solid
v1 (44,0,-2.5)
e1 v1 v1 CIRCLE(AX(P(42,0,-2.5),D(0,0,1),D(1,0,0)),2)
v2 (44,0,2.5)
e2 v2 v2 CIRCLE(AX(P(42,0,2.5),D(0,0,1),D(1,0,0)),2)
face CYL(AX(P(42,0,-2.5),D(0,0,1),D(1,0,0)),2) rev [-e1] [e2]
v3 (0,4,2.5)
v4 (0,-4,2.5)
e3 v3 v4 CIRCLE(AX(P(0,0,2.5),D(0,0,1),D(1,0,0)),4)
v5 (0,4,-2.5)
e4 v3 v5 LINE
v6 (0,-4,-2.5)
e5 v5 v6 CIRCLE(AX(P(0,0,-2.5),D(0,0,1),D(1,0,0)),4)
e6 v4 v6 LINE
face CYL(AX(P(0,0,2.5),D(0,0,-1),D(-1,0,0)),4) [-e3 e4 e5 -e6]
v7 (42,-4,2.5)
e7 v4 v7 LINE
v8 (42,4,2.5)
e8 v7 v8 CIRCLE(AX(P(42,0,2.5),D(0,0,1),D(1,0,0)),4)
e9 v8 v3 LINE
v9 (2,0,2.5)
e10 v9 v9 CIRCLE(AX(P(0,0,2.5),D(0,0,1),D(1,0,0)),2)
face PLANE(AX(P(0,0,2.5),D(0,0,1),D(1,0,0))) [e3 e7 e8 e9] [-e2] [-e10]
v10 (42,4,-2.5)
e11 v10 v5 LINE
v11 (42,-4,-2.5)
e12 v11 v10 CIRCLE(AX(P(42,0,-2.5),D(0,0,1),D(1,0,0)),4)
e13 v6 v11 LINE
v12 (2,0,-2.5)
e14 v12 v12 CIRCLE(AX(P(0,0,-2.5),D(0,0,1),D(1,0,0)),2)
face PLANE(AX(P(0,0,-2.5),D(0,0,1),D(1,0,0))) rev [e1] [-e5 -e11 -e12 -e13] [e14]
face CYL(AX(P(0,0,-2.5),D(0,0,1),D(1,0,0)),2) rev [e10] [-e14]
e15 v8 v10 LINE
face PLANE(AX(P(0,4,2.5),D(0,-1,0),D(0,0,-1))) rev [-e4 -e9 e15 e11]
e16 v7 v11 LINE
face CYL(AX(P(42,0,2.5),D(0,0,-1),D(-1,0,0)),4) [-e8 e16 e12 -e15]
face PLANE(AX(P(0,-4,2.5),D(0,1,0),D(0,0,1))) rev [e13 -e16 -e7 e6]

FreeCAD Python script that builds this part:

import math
import FreeCAD as App
import Part
import Sketcher
from FreeCAD import Vector

doc = App.newDocument("Part")
params = doc.addObject("Spreadsheet::Sheet", "Params")
for row, (alias, value) in enumerate([
    ("sketch1_radius", "4 mm"),
    ("sketch1_width", "42 mm"),
    ("pad1_length", "5 mm"),
    ("sketch2_diameter", "4 mm"),
], start=1):
    params.set(f"A{row}", alias)
    params.set(f"B{row}", "=" + value)
    params.setAlias(f"B{row}", alias)

body = doc.addObject("PartDesign::Body", "Body")

# Sketch on XY plane
sketch1 = body.newObject("Sketcher::SketchObject", "Sketch")
sketch1.AttachmentSupport = (doc.getObject("XY_Plane"), [""])
sketch1.MapMode = "FlatFace"
sketch1.addGeometry([
    Part.LineSegment(Vector(42, 4, 0), Vector(0, 4, 0)),
    Part.ArcOfCircle(Part.Circle(Vector(0, 0, 0), Vector(0, 0, 1), 4), math.radians(90), math.radians(270)),
    Part.LineSegment(Vector(0, -4, 0), Vector(42, -4, 0)),
    Part.ArcOfCircle(Part.Circle(Vector(42, 0, 0), Vector(0, 0, 1), 4), math.radians(-90), math.radians(90)),
], False)
sketch1.addConstraint([
    Sketcher.Constraint("Tangent", 0, 2, 1, 1),
    Sketcher.Constraint("Tangent", 1, 2, 2, 1),
    Sketcher.Constraint("Tangent", 2, 2, 3, 1),
    Sketcher.Constraint("Tangent", 3, 2, 0, 1),
    Sketcher.Constraint("Horizontal", 0),
    Sketcher.Constraint("Horizontal", 2),
    Sketcher.Constraint("Coincident", 1, 3, -1, 1),
    Sketcher.Constraint("Radius", 1, 4.0),
    Sketcher.Constraint("DistanceX", 0, 2, 0, 1, 42.0),
])
sketch1.setExpression("Constraints[7]", "Params.sketch1_radius")
sketch1.setExpression("Constraints[8]", "Params.sketch1_width")
pad1 = body.newObject("PartDesign::Pad", "Pad")
pad1.Profile = sketch1
pad1.setExpression("Length", "Params.pad1_length")
pad1.Midplane = True

# Sketch on XY plane
sketch2 = body.newObject("Sketcher::SketchObject", "Sketch001")
sketch2.AttachmentSupport = (doc.getObject("XY_Plane"), [""])
sketch2.MapMode = "FlatFace"
sketch2.AttachmentOffset = App.Placement(Vector(0, 0, 2.5), App.Rotation())
sketch2.addGeometry([
    Part.Circle(Vector(42, 0, 0), Vector(0, 0, 1), 2),
    Part.Circle(Vector(0, 0, 0), Vector(0, 0, 1), 2),
], False)
sketch2.addConstraint([
    Sketcher.Constraint("Coincident", 1, 3, -1, 1),
    Sketcher.Constraint("Equal", 0, 1),
    Sketcher.Constraint("PointOnObject", 0, 3, -1),
    Sketcher.Constraint("Diameter", 0, 4.0),
    Sketcher.Constraint("DistanceX", -1, 1, 0, 3, 42.0),
])
sketch2.setExpression("Constraints[3]", "Params.sketch2_diameter")
pocket1 = body.newObject("PartDesign::Pocket", "Pocket")
pocket1.Profile = sketch2
pocket1.Type = "ThroughAll"

doc.recompute()
